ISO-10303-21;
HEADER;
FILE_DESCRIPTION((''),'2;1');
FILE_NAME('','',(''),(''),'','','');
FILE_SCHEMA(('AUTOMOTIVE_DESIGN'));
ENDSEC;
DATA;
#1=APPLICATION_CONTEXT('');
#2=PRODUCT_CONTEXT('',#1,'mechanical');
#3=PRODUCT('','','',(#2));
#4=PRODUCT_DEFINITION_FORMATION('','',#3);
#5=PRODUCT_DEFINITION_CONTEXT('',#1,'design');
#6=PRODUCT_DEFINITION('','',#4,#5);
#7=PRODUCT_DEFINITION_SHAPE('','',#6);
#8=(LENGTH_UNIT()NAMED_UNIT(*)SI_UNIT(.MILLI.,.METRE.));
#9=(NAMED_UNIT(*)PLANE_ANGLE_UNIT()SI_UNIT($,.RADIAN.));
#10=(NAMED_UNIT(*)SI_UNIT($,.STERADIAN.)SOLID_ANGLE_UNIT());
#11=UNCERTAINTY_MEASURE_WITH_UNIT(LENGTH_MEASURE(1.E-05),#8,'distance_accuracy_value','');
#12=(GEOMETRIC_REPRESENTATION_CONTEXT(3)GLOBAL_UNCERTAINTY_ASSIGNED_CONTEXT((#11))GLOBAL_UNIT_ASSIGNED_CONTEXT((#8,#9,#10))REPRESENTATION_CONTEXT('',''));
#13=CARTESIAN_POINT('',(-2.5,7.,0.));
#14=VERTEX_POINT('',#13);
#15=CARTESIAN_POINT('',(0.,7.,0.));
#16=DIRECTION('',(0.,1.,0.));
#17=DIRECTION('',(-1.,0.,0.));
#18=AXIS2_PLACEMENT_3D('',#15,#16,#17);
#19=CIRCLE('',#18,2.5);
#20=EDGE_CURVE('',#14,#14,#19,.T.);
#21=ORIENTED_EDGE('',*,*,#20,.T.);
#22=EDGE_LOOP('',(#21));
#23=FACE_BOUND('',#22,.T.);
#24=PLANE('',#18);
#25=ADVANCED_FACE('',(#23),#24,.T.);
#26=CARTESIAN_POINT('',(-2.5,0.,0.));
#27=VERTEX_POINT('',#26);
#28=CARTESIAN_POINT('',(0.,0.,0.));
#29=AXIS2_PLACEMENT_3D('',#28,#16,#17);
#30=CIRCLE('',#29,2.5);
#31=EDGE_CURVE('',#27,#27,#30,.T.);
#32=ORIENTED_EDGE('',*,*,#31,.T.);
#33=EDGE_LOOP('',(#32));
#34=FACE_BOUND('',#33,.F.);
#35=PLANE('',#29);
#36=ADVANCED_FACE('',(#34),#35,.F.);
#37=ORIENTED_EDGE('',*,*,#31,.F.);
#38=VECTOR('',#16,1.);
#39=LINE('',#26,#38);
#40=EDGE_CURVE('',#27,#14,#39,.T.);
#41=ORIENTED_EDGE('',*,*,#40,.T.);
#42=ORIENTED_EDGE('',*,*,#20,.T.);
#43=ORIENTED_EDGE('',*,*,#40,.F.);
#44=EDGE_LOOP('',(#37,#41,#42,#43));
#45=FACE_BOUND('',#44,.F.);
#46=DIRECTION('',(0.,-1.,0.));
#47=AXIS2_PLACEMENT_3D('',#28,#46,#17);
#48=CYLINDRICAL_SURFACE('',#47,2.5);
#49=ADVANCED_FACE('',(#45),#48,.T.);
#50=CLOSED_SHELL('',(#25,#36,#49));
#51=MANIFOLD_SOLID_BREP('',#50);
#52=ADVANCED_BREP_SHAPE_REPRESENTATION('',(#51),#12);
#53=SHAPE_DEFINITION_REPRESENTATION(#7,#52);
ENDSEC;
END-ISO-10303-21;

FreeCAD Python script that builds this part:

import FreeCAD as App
import Part
import Sketcher
from FreeCAD import Vector
Q = App.Units.Quantity

doc = App.newDocument("Part")
params = doc.addObject("Spreadsheet::Sheet", "Params")
for row, (alias, value) in enumerate([
    ("sketch1_diameter", "5 mm"),
    ("pad1_length", "7 mm"),
], start=1):
    params.set(f"A{row}", alias)
    params.set(f"B{row}", "=" + value)
    params.setAlias(f"B{row}", alias)

body = doc.addObject("PartDesign::Body", "Body")

sketch1 = body.newObject("Sketcher::SketchObject", "Sketch")
sketch1.AttachmentSupport = (doc.getObject("XZ_Plane"), [""])
sketch1.MapMode = "FlatFace"
sketch1.addGeometry(Part.Circle(Vector(0, 0, 0), Vector(0, 0, 1), 2.5), False)
sketch1.addConstraint(Sketcher.Constraint("Coincident", 0, 3, -1, 1))
sketch1.addConstraint(Sketcher.Constraint("Diameter", 0, Q("5 mm")))
sketch1.setExpression("Constraints[1]", "Params.sketch1_diameter")
pad1 = body.newObject("PartDesign::Pad", "Pad")
pad1.Profile = sketch1
pad1.setExpression("Length", "Params.pad1_length")
pad1.Reversed = True

doc.recompute()
